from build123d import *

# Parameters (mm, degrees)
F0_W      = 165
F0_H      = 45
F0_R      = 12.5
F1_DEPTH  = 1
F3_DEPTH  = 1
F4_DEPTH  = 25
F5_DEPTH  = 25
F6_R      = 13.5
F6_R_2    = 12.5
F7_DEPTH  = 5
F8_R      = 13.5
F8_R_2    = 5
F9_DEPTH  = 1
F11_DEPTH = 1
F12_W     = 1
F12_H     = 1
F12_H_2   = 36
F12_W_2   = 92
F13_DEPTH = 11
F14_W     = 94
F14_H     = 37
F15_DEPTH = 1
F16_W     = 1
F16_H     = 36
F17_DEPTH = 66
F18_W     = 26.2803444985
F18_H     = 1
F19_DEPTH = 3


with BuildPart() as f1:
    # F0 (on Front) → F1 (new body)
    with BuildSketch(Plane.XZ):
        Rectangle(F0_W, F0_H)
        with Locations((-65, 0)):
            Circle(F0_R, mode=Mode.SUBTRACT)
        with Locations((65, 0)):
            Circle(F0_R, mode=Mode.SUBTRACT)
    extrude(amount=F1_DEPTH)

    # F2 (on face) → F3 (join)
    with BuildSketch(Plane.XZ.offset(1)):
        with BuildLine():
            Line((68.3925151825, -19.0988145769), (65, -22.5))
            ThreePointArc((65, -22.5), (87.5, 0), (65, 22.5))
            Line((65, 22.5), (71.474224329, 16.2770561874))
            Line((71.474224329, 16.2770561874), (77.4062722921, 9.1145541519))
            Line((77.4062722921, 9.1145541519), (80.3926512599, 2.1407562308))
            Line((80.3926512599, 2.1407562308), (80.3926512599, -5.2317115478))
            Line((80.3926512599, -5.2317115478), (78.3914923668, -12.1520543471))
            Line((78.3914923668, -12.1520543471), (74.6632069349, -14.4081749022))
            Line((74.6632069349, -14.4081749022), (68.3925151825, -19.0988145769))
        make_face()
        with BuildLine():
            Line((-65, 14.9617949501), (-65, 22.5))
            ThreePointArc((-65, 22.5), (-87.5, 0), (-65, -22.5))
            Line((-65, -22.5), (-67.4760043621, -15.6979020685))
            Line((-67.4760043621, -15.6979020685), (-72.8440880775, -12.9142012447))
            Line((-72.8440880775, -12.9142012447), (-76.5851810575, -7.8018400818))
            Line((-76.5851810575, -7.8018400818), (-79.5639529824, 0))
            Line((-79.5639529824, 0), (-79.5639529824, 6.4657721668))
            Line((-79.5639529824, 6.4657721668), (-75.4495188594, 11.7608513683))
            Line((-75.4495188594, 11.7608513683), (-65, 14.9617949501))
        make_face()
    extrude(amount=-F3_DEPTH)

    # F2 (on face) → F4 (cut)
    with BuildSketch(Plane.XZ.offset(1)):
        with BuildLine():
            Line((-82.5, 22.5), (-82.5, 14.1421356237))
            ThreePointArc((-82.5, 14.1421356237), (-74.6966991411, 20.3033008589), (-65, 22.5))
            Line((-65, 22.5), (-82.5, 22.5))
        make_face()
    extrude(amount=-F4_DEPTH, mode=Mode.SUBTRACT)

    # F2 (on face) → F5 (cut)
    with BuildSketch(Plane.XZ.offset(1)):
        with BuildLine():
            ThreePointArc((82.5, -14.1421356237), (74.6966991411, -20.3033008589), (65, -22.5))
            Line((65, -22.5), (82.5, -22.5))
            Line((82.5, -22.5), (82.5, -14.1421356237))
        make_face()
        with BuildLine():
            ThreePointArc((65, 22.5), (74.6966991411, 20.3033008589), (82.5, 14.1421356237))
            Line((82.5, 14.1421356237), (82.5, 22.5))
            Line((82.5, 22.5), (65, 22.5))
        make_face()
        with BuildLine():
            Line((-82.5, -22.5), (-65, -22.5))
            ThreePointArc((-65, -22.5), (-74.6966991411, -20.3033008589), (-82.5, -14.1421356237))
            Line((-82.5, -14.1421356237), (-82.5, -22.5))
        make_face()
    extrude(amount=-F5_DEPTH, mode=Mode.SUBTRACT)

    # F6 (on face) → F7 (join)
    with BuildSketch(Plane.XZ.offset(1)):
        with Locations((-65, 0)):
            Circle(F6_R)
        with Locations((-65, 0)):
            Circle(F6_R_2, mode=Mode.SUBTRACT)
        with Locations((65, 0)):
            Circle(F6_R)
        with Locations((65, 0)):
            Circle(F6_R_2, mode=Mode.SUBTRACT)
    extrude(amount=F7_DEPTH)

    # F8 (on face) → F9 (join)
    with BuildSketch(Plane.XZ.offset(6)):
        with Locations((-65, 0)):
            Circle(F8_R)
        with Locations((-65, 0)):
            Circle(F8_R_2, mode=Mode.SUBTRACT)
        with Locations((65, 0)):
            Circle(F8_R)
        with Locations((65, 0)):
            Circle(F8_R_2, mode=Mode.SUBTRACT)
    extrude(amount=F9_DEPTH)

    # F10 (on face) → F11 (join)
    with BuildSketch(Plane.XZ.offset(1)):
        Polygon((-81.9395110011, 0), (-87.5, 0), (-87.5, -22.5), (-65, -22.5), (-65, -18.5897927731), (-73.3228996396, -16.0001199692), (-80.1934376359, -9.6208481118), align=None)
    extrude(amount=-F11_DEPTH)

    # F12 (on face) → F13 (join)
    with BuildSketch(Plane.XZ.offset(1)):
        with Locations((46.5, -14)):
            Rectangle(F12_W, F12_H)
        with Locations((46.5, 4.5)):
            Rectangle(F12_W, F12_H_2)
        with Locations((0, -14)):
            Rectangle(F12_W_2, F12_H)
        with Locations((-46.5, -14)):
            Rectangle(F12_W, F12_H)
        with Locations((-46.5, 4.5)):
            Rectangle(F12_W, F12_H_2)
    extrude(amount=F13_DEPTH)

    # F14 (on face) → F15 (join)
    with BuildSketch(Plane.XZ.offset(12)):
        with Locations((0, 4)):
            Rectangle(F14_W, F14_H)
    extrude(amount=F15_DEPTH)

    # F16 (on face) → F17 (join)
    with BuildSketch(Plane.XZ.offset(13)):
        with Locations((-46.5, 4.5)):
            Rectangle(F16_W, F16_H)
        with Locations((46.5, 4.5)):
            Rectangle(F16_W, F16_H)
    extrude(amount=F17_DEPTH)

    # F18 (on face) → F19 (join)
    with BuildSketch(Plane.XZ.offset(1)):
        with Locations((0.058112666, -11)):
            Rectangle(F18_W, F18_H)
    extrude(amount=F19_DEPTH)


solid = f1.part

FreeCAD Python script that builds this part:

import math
import FreeCAD as App
import Part
import Sketcher
from FreeCAD import Vector

doc = App.newDocument("Part")
body = doc.addObject("PartDesign::Body", "Body")

# Sketch on XZ plane
sketch1 = body.newObject("Sketcher::SketchObject", "Sketch")
sketch1.AttachmentSupport = (doc.getObject("XZ_Plane"), [""])
sketch1.MapMode = "FlatFace"
sketch1.addGeometry([
    Part.LineSegment(Vector(-82, 22, 0), Vector(-82, -22, 0)),  # 0
    Part.LineSegment(Vector(-82, -22, 0), Vector(82, -22, 0)),  # 1
    Part.LineSegment(Vector(82, -22, 0), Vector(82, 22, 0)),  # 2
    Part.LineSegment(Vector(82, 22, 0), Vector(-82, 22, 0)),  # 3
    Part.Circle(Vector(-65, 0, 0), Vector(0, 0, 1), 12),  # 4
    Part.Circle(Vector(65, 0, 0), Vector(0, 0, 1), 12),  # 5
], False)
sketch1.addConstraint([
    Sketcher.Constraint("Coincident", 0, 2, 1, 1),
    Sketcher.Constraint("Coincident", 1, 2, 2, 1),
    Sketcher.Constraint("Coincident", 2, 2, 3, 1),
    Sketcher.Constraint("Coincident", 3, 2, 0, 1),
    Sketcher.Constraint("Vertical", 0),
    Sketcher.Constraint("Horizontal", 1),
    Sketcher.Constraint("Vertical", 2),
    Sketcher.Constraint("Horizontal", 3),
    Sketcher.Constraint("Equal", 4, 5),
    Sketcher.Constraint("Symmetric", 4, 3, 5, 3, -1, 1),
    Sketcher.Constraint("Symmetric", 0, 2, 2, 2, -1, 1),
    Sketcher.Constraint("PointOnObject", 4, 3, -1),
    Sketcher.Constraint("Diameter", 4, 25.0),
    Sketcher.Constraint("DistanceX", 1, 1, 1, 2, 165.0),
    Sketcher.Constraint("DistanceY", 0, 2, 0, 1, 45.0),
    Sketcher.Constraint("DistanceX", 4, 3, -1, 1, 65.0),
])
pad1 = body.newObject("PartDesign::Pad", "Pad")
pad1.Profile = sketch1
pad1.Length = 1

# Sketch on XZ plane
sketch2 = body.newObject("Sketcher::SketchObject", "Sketch001")
sketch2.AttachmentSupport = (doc.getObject("XZ_Plane"), [""])
sketch2.MapMode = "FlatFace"
sketch2.AttachmentOffset = App.Placement(Vector(0, 0, 1), App.Rotation())
sketch2.addGeometry([
    Part.LineSegment(Vector(68.4, -19.1, 0), Vector(65, -22.5, 0)),  # 0
    Part.ArcOfCircle(Part.Circle(Vector(65, 0, 0), Vector(0, 0, 1), 22.5), math.radians(-90), math.radians(90)),  # 1
    Part.LineSegment(Vector(65, 22.5, 0), Vector(71.5, 16.3, 0)),  # 2
    Part.LineSegment(Vector(71.5, 16.3, 0), Vector(77.4, 9.1, 0)),  # 3
    Part.LineSegment(Vector(77.4, 9.1, 0), Vector(80.4, 2.1, 0)),  # 4
    Part.LineSegment(Vector(80.4, 2.1, 0), Vector(80.4, -5.2, 0)),  # 5
    Part.LineSegment(Vector(80.4, -5.2, 0), Vector(78.4, -12.2, 0)),  # 6
    Part.LineSegment(Vector(78.4, -12.2, 0), Vector(74.7, -14.4, 0)),  # 7
    Part.LineSegment(Vector(74.7, -14.4, 0), Vector(68.4, -19.1, 0)),  # 8
    Part.LineSegment(Vector(-65, 15, 0), Vector(-65, 22.5, 0)),  # 9
    Part.ArcOfCircle(Part.Circle(Vector(-65, 0, 0), Vector(0, 0, 1), 22.5), math.radians(90), math.radians(270)),  # 10
    Part.LineSegment(Vector(-65, -22.5, 0), Vector(-67.5, -15.7, 0)),  # 11
    Part.LineSegment(Vector(-67.5, -15.7, 0), Vector(-72.8, -12.9, 0)),  # 12
    Part.LineSegment(Vector(-72.8, -12.9, 0), Vector(-76.6, -7.8, 0)),  # 13
    Part.LineSegment(Vector(-76.6, -7.8, 0), Vector(-79.6, 0, 0)),  # 14
    Part.LineSegment(Vector(-79.6, 0, 0), Vector(-79.6, 6.5, 0)),  # 15
    Part.LineSegment(Vector(-79.6, 6.5, 0), Vector(-75.4, 11.8, 0)),  # 16
    Part.LineSegment(Vector(-75.4, 11.8, 0), Vector(-65, 15, 0)),  # 17
], False)
sketch2.addConstraint([
    Sketcher.Constraint("Coincident", 0, 2, 1, 1),
    Sketcher.Constraint("Coincident", 1, 2, 2, 1),
    Sketcher.Constraint("Coincident", 2, 2, 3, 1),
    Sketcher.Constraint("Coincident", 3, 2, 4, 1),
    Sketcher.Constraint("Coincident", 4, 2, 5, 1),
    Sketcher.Constraint("Coincident", 5, 2, 6, 1),
    Sketcher.Constraint("Coincident", 6, 2, 7, 1),
    Sketcher.Constraint("Coincident", 7, 2, 8, 1),
    Sketcher.Constraint("Coincident", 8, 2, 0, 1),
    Sketcher.Constraint("Coincident", 9, 2, 10, 1),
    Sketcher.Constraint("Coincident", 10, 2, 11, 1),
    Sketcher.Constraint("Coincident", 11, 2, 12, 1),
    Sketcher.Constraint("Coincident", 12, 2, 13, 1),
    Sketcher.Constraint("Coincident", 13, 2, 14, 1),
    Sketcher.Constraint("Coincident", 14, 2, 15, 1),
    Sketcher.Constraint("Coincident", 15, 2, 16, 1),
    Sketcher.Constraint("Coincident", 16, 2, 17, 1),
    Sketcher.Constraint("Coincident", 17, 2, 9, 1),
    Sketcher.Constraint("Vertical", 5),
    Sketcher.Constraint("Vertical", 9),
    Sketcher.Constraint("Vertical", 15),
    Sketcher.Constraint("Equal", 1, 10),
    Sketcher.Constraint("Symmetric", 1, 3, 10, 3, -1, 1),
    Sketcher.Constraint("Symmetric", 1, 2, 9, 2, -2),
    Sketcher.Constraint("PointOnObject", 14, 2, -1),
    Sketcher.Constraint("Vertical", 1, 3, 0, 2),
    Sketcher.Constraint("Vertical", 0, 2, 1, 2),
    Sketcher.Constraint("Vertical", 9, 2, 10, 2),
    Sketcher.Constraint("Radius", 1, 22.5),
    Sketcher.Constraint("DistanceX", -1, 1, 1, 3, 65.0),
    Sketcher.Constraint("Distance", 16, 6.705701),
    Sketcher.Constraint("DistanceY", 12, 2, -1, 1, 12.914201),
    Sketcher.Constraint("DistanceY", 4, 2, 2, 2, 14.1363),
    Sketcher.Constraint("DistanceY", 11, 2, 12, 2, 2.783701),
    Sketcher.Constraint("Distance", 2, 8.980012),
    Sketcher.Constraint("Distance", 17, 10.928792),
    Sketcher.Constraint("DistanceY", 5, 2, 5, 1, 7.372468),
    Sketcher.Constraint("DistanceY", 9, 1, 9, 2, 7.538205),
    Sketcher.Constraint("DistanceY", 15, 1, 15, 2, 6.465772),
    Sketcher.Constraint("DistanceX", -1, 1, 4, 2, 80.392651),
    Sketcher.Constraint("DistanceY", 5, 2, -1, 1, 5.231712),
    Sketcher.Constraint("DistanceX", 12, 2, -1, 1, 72.844088),
    Sketcher.Constraint("DistanceX", 13, 2, -1, 1, 76.585181),
    Sketcher.Constraint("DistanceY", 13, 2, -1, 1, 7.80184),
    Sketcher.Constraint("DistanceX", 16, 2, -1, 1, 75.449519),
    Sketcher.Constraint("DistanceX", 3, 2, 4, 2, 2.986379),
    Sketcher.Constraint("DistanceX", 6, 2, 5, 2, 2.001159),
    Sketcher.Constraint("DistanceY", 6, 2, 4, 2, 14.292811),
    Sketcher.Constraint("DistanceY", 6, 2, 3, 2, 21.266608),
    Sketcher.Constraint("DistanceY", 7, 2, 6, 2, 2.256121),
    Sketcher.Constraint("DistanceX", 8, 2, 7, 2, 6.270692),
    Sketcher.Constraint("DistanceY", 8, 2, 7, 2, 4.69064),
    Sketcher.Constraint("DistanceX", 14, 2, 11, 2, 12.087949),
    Sketcher.Constraint("Distance", 0, 4.803876),
])
pad2 = body.newObject("PartDesign::Pad", "Pad001")
pad2.Profile = sketch2
pad2.Length = 1
pad2.Reversed = True

# Sketch on XZ plane
sketch3 = body.newObject("Sketcher::SketchObject", "Sketch002")
sketch3.AttachmentSupport = (doc.getObject("XZ_Plane"), [""])
sketch3.MapMode = "FlatFace"
sketch3.AttachmentOffset = App.Placement(Vector(0, 0, 1), App.Rotation())
sketch3.addGeometry([
    Part.LineSegment(Vector(-82, 22, 0), Vector(-82, 14, 0)),
    Part.ArcOfCircle(Part.Circle(Vector(-65, 0, 0), Vector(0, 0, 1), 22), math.radians(90), math.radians(141)),
    Part.LineSegment(Vector(-65, 22, 0), Vector(-82, 22, 0)),
], False)
sketch3.addConstraint([
    Sketcher.Constraint("Coincident", 0, 2, 1, 2),
    Sketcher.Constraint("Tangent", 1, 1, 2, 1),
    Sketcher.Constraint("Coincident", 2, 2, 0, 1),
    Sketcher.Constraint("Vertical", 0),
    Sketcher.Constraint("Horizontal", 2),
    Sketcher.Constraint("PointOnObject", 1, 3, -1),
    Sketcher.Constraint("Radius", 1, 22.5),
    Sketcher.Constraint("DistanceX", 2, 2, 2, 1, 17.5),
    Sketcher.Constraint("DistanceX", 1, 3, -1, 1, 65.0),
])
pocket1 = body.newObject("PartDesign::Pocket", "Pocket")
pocket1.Profile = sketch3
pocket1.Length = 25

# Sketch on XZ plane
sketch4 = body.newObject("Sketcher::SketchObject", "Sketch003")
sketch4.AttachmentSupport = (doc.getObject("XZ_Plane"), [""])
sketch4.MapMode = "FlatFace"
sketch4.AttachmentOffset = App.Placement(Vector(0, 0, 1), App.Rotation())
sketch4.addGeometry([
    Part.ArcOfCircle(Part.Circle(Vector(65, 0, 0), Vector(0, 0, 1), 22), math.radians(-90), math.radians(-39)),  # 0
    Part.LineSegment(Vector(65, -22, 0), Vector(82, -22, 0)),  # 1
    Part.LineSegment(Vector(82, -22, 0), Vector(82, -14, 0)),  # 2
    Part.ArcOfCircle(Part.Circle(Vector(65, 0, 0), Vector(0, 0, 1), 22), math.radians(39), math.radians(90)),  # 3
    Part.LineSegment(Vector(82, 14, 0), Vector(82, 22, 0)),  # 4
    Part.LineSegment(Vector(82, 22, 0), Vector(65, 22, 0)),  # 5
    Part.LineSegment(Vector(-82, -22, 0), Vector(-65, -22, 0)),  # 6
    Part.ArcOfCircle(Part.Circle(Vector(-65, 0, 0), Vector(0, 0, 1), 22), math.radians(-141), math.radians(-90)),  # 7
    Part.LineSegment(Vector(-82, -14, 0), Vector(-82, -22, 0)),  # 8
], False)
sketch4.addConstraint([
    Sketcher.Constraint("Tangent", 0, 1, 1, 1),
    Sketcher.Constraint("Coincident", 1, 2, 2, 1),
    Sketcher.Constraint("Coincident", 2, 2, 0, 2),
    Sketcher.Constraint("Coincident", 3, 1, 4, 1),
    Sketcher.Constraint("Coincident", 4, 2, 5, 1),
    Sketcher.Constraint("Tangent", 5, 2, 3, 2),
    Sketcher.Constraint("Tangent", 6, 2, 7, 2),
    Sketcher.Constraint("Coincident", 7, 1, 8, 1),
    Sketcher.Constraint("Coincident", 8, 2, 6, 1),
    Sketcher.Constraint("Horizontal", 1),
    Sketcher.Constraint("Vertical", 2),
    Sketcher.Constraint("Vertical", 4),
    Sketcher.Constraint("Horizontal", 5),
    Sketcher.Constraint("Horizontal", 6),
    Sketcher.Constraint("Vertical", 8),
    Sketcher.Constraint("Coincident", 3, 3, 0, 3),
    Sketcher.Constraint("Equal", 0, 3),
    Sketcher.Constraint("Equal", 3, 7),
    Sketcher.Constraint("Symmetric", 0, 3, 7, 3, -1, 1),
    Sketcher.Constraint("Symmetric", 2, 2, 7, 1, -2),
    Sketcher.Constraint("Vertical", 2, 2, 3, 1),
    Sketcher.Constraint("Radius", 0, 22.5),
    Sketcher.Constraint("DistanceX", 1, 1, 1, 2, 17.5),
    Sketcher.Constraint("DistanceX", -1, 1, 0, 3, 65.0),
])
pocket2 = body.newObject("PartDesign::Pocket", "Pocket001")
pocket2.Profile = sketch4
pocket2.Length = 25

# Sketch on XZ plane
sketch5 = body.newObject("Sketcher::SketchObject", "Sketch004")
sketch5.AttachmentSupport = (doc.getObject("XZ_Plane"), [""])
sketch5.MapMode = "FlatFace"
sketch5.AttachmentOffset = App.Placement(Vector(0, 0, 1), App.Rotation())
sketch5.addGeometry([
    Part.Circle(Vector(-65, 0, 0), Vector(0, 0, 1), 14),
    Part.Circle(Vector(-65, 0, 0), Vector(0, 0, 1), 12),
    Part.Circle(Vector(65, 0, 0), Vector(0, 0, 1), 14),
    Part.Circle(Vector(65, 0, 0), Vector(0, 0, 1), 12),
], False)
sketch5.addConstraint([
    Sketcher.Constraint("Coincident", 1, 3, 0, 3),
    Sketcher.Constraint("Coincident", 3, 3, 2, 3),
    Sketcher.Constraint("Equal", 0, 2),
    Sketcher.Constraint("Equal", 1, 3),
    Sketcher.Constraint("Symmetric", 0, 3, 2, 3, -1, 1),
    Sketcher.Constraint("PointOnObject", 0, 3, -1),
    Sketcher.Constraint("Diameter", 0, 27.0),
    Sketcher.Constraint("Diameter", 1, 25.0),
    Sketcher.Constraint("DistanceX", 0, 3, -1, 1, 65.0),
])
pad3 = body.newObject("PartDesign::Pad", "Pad002")
pad3.Profile = sketch5
pad3.Length = 5

# Sketch on XZ plane
sketch6 = body.newObject("Sketcher::SketchObject", "Sketch005")
sketch6.AttachmentSupport = (doc.getObject("XZ_Plane"), [""])
sketch6.MapMode = "FlatFace"
sketch6.AttachmentOffset = App.Placement(Vector(0, 0, 6), App.Rotation())
sketch6.addGeometry([
    Part.Circle(Vector(-65, 0, 0), Vector(0, 0, 1), 14),
    Part.Circle(Vector(-65, 0, 0), Vector(0, 0, 1), 5),
    Part.Circle(Vector(65, 0, 0), Vector(0, 0, 1), 14),
    Part.Circle(Vector(65, 0, 0), Vector(0, 0, 1), 5),
], False)
sketch6.addConstraint([
    Sketcher.Constraint("Coincident", 1, 3, 0, 3),
    Sketcher.Constraint("Coincident", 3, 3, 2, 3),
    Sketcher.Constraint("Equal", 0, 2),
    Sketcher.Constraint("Equal", 1, 3),
    Sketcher.Constraint("Symmetric", 0, 3, 2, 3, -1, 1),
    Sketcher.Constraint("PointOnObject", 0, 3, -1),
    Sketcher.Constraint("Diameter", 0, 27.0),
    Sketcher.Constraint("Diameter", 1, 10.0),
    Sketcher.Constraint("DistanceX", 0, 3, -1, 1, 65.0),
])
pad4 = body.newObject("PartDesign::Pad", "Pad003")
pad4.Profile = sketch6
pad4.Length = 1

# Sketch on XZ plane
sketch7 = body.newObject("Sketcher::SketchObject", "Sketch006")
sketch7.AttachmentSupport = (doc.getObject("XZ_Plane"), [""])
sketch7.MapMode = "FlatFace"
sketch7.AttachmentOffset = App.Placement(Vector(0, 0, 1), App.Rotation())
sketch7.addGeometry([
    Part.LineSegment(Vector(-81.9, 0, 0), Vector(-87.5, 0, 0)),  # 0
    Part.LineSegment(Vector(-87.5, 0, 0), Vector(-87.5, -22.5, 0)),  # 1
    Part.LineSegment(Vector(-87.5, -22.5, 0), Vector(-65, -22.5, 0)),  # 2
    Part.LineSegment(Vector(-65, -22.5, 0), Vector(-65, -18.6, 0)),  # 3
    Part.LineSegment(Vector(-65, -18.6, 0), Vector(-73.3, -16, 0)),  # 4
    Part.LineSegment(Vector(-73.3, -16, 0), Vector(-80.2, -9.6, 0)),  # 5
    Part.LineSegment(Vector(-80.2, -9.6, 0), Vector(-81.9, 0, 0)),  # 6
], False)
sketch7.addConstraint([
    Sketcher.Constraint("Coincident", 0, 2, 1, 1),
    Sketcher.Constraint("Coincident", 1, 2, 2, 1),
    Sketcher.Constraint("Coincident", 2, 2, 3, 1),
    Sketcher.Constraint("Coincident", 3, 2, 4, 1),
    Sketcher.Constraint("Coincident", 4, 2, 5, 1),
    Sketcher.Constraint("Coincident", 5, 2, 6, 1),
    Sketcher.Constraint("Coincident", 6, 2, 0, 1),
    Sketcher.Constraint("Horizontal", 0),
    Sketcher.Constraint("Vertical", 1),
    Sketcher.Constraint("Horizontal", 2),
    Sketcher.Constraint("Vertical", 3),
    Sketcher.Constraint("PointOnObject", 0, 2, -1),
    Sketcher.Constraint("Equal", 2, 1),
    Sketcher.Constraint("DistanceX", 2, 1, 2, 2, 22.5),
    Sketcher.Constraint("DistanceX", 2, 2, -1, 1, 65.0),
    Sketcher.Constraint("DistanceX", 0, 2, 0, 1, 5.560489),
    Sketcher.Constraint("DistanceX", 4, 2, -1, 1, 73.3229),
    Sketcher.Constraint("Distance", 5, 9.375468),
    Sketcher.Constraint("Distance", 6, 9.778011),
    Sketcher.Constraint("DistanceY", 3, 1, 3, 2, 3.910207),
    Sketcher.Constraint("DistanceY", 4, 2, -1, 1, 16.00012),
])
pad5 = body.newObject("PartDesign::Pad", "Pad004")
pad5.Profile = sketch7
pad5.Length = 1
pad5.Reversed = True

# Sketch on XZ plane
sketch8 = body.newObject("Sketcher::SketchObject", "Sketch007")
sketch8.AttachmentSupport = (doc.getObject("XZ_Plane"), [""])
sketch8.MapMode = "FlatFace"
sketch8.AttachmentOffset = App.Placement(Vector(0, 0, 1), App.Rotation())
sketch8.addGeometry([
    Part.LineSegment(Vector(47, -14.5, 0), Vector(47, 22.5, 0)),  # 0
    Part.LineSegment(Vector(47, 22.5, 0), Vector(46, 22.5, 0)),  # 1
    Part.LineSegment(Vector(46, 22.5, 0), Vector(46, -13.5, 0)),  # 2
    Part.LineSegment(Vector(46, -13.5, 0), Vector(-46, -13.5, 0)),  # 3
    Part.LineSegment(Vector(-46, -13.5, 0), Vector(-46, 22.5, 0)),  # 4
    Part.LineSegment(Vector(-46, 22.5, 0), Vector(-47, 22.5, 0)),  # 5
    Part.LineSegment(Vector(-47, 22.5, 0), Vector(-47, -14.5, 0)),  # 6
    Part.LineSegment(Vector(-47, -14.5, 0), Vector(47, -14.5, 0)),  # 7
], False)
sketch8.addConstraint([
    Sketcher.Constraint("Coincident", 0, 2, 1, 1),
    Sketcher.Constraint("Coincident", 1, 2, 2, 1),
    Sketcher.Constraint("Coincident", 2, 2, 3, 1),
    Sketcher.Constraint("Coincident", 3, 2, 4, 1),
    Sketcher.Constraint("Coincident", 4, 2, 5, 1),
    Sketcher.Constraint("Coincident", 5, 2, 6, 1),
    Sketcher.Constraint("Coincident", 6, 2, 7, 1),
    Sketcher.Constraint("Coincident", 7, 2, 0, 1),
    Sketcher.Constraint("Vertical", 0),
    Sketcher.Constraint("Horizontal", 1),
    Sketcher.Constraint("Vertical", 2),
    Sketcher.Constraint("Horizontal", 3),
    Sketcher.Constraint("Vertical", 4),
    Sketcher.Constraint("Horizontal", 5),
    Sketcher.Constraint("Vertical", 6),
    Sketcher.Constraint("Horizontal", 7),
    Sketcher.Constraint("Symmetric", 1, 2, 4, 2, -2),
    Sketcher.Constraint("Equal", 1, 5),
    Sketcher.Constraint("DistanceX", 1, 2, 1, 1, 1.0),
    Sketcher.Constraint("DistanceX", 3, 2, 3, 1, 92.0),
    Sketcher.Constraint("DistanceY", 0, 1, 0, 2, 37.0),
    Sketcher.Constraint("DistanceY", 2, 2, 2, 1, 36.0),
    Sketcher.Constraint("DistanceY", -1, 1, 0, 2, 22.5),
])
pad6 = body.newObject("PartDesign::Pad", "Pad005")
pad6.Profile = sketch8
pad6.Length = 11

# Sketch on XZ plane
sketch9 = body.newObject("Sketcher::SketchObject", "Sketch008")
sketch9.AttachmentSupport = (doc.getObject("XZ_Plane"), [""])
sketch9.MapMode = "FlatFace"
sketch9.AttachmentOffset = App.Placement(Vector(0, 0, 12), App.Rotation())
sketch9.addGeometry([
    Part.LineSegment(Vector(-47, 22, 0), Vector(-47, -14, 0)),
    Part.LineSegment(Vector(-47, -14, 0), Vector(47, -14, 0)),
    Part.LineSegment(Vector(47, -14, 0), Vector(47, 22, 0)),
    Part.LineSegment(Vector(47, 22, 0), Vector(-47, 22, 0)),
], False)
sketch9.addConstraint([
    Sketcher.Constraint("Coincident", 0, 2, 1, 1),
    Sketcher.Constraint("Coincident", 1, 2, 2, 1),
    Sketcher.Constraint("Coincident", 2, 2, 3, 1),
    Sketcher.Constraint("Coincident", 3, 2, 0, 1),
    Sketcher.Constraint("Vertical", 0),
    Sketcher.Constraint("Horizontal", 1),
    Sketcher.Constraint("Vertical", 2),
    Sketcher.Constraint("Horizontal", 3),
    Sketcher.Constraint("DistanceX", 1, 1, 1, 2, 94.0),
    Sketcher.Constraint("DistanceY", 0, 2, 0, 1, 37.0),
    Sketcher.Constraint("DistanceX", 0, 2, -1, 1, 47.0),
    Sketcher.Constraint("DistanceY", 0, 2, -1, 1, 14.5),
])
pad7 = body.newObject("PartDesign::Pad", "Pad006")
pad7.Profile = sketch9
pad7.Length = 1

# Sketch on XZ plane
sketch10 = body.newObject("Sketcher::SketchObject", "Sketch009")
sketch10.AttachmentSupport = (doc.getObject("XZ_Plane"), [""])
sketch10.MapMode = "FlatFace"
sketch10.AttachmentOffset = App.Placement(Vector(0, 0, 13), App.Rotation())
sketch10.addGeometry([
    Part.LineSegment(Vector(-47, 22.5, 0), Vector(-47, -13.5, 0)),  # 0
    Part.LineSegment(Vector(-47, -13.5, 0), Vector(-46, -13.5, 0)),  # 1
    Part.LineSegment(Vector(-46, -13.5, 0), Vector(-46, 22.5, 0)),  # 2
    Part.LineSegment(Vector(-46, 22.5, 0), Vector(-47, 22.5, 0)),  # 3
    Part.LineSegment(Vector(46, 22.5, 0), Vector(46, -13.5, 0)),  # 4
    Part.LineSegment(Vector(46, -13.5, 0), Vector(47, -13.5, 0)),  # 5
    Part.LineSegment(Vector(47, -13.5, 0), Vector(47, 22.5, 0)),  # 6
    Part.LineSegment(Vector(47, 22.5, 0), Vector(46, 22.5, 0)),  # 7
], False)
sketch10.addConstraint([
    Sketcher.Constraint("Coincident", 0, 2, 1, 1),
    Sketcher.Constraint("Coincident", 1, 2, 2, 1),
    Sketcher.Constraint("Coincident", 2, 2, 3, 1),
    Sketcher.Constraint("Coincident", 3, 2, 0, 1),
    Sketcher.Constraint("Coincident", 4, 2, 5, 1),
    Sketcher.Constraint("Coincident", 5, 2, 6, 1),
    Sketcher.Constraint("Coincident", 6, 2, 7, 1),
    Sketcher.Constraint("Coincident", 7, 2, 4, 1),
    Sketcher.Constraint("Vertical", 0),
    Sketcher.Constraint("Horizontal", 1),
    Sketcher.Constraint("Vertical", 2),
    Sketcher.Constraint("Horizontal", 3),
    Sketcher.Constraint("Vertical", 4),
    Sketcher.Constraint("Horizontal", 5),
    Sketcher.Constraint("Vertical", 6),
    Sketcher.Constraint("Horizontal", 7),
    Sketcher.Constraint("Symmetric", 1, 2, 4, 2, -2),
    Sketcher.Constraint("Symmetric", 3, 2, 6, 2, -2),
    Sketcher.Constraint("DistanceX", 1, 1, 1, 2, 1.0),
    Sketcher.Constraint("DistanceY", 0, 2, 0, 1, 36.0),
    Sketcher.Constraint("DistanceX", 0, 2, -1, 1, 47.0),
    Sketcher.Constraint("DistanceY", 0, 2, -1, 1, 13.5),
])
pad8 = body.newObject("PartDesign::Pad", "Pad007")
pad8.Profile = sketch10
pad8.Length = 66

# Sketch on XZ plane
sketch11 = body.newObject("Sketcher::SketchObject", "Sketch010")
sketch11.AttachmentSupport = (doc.getObject("XZ_Plane"), [""])
sketch11.MapMode = "FlatFace"
sketch11.AttachmentOffset = App.Placement(Vector(0, 0, 1), App.Rotation())
sketch11.addGeometry([
    Part.LineSegment(Vector(-13.1, -10.5, 0), Vector(-13.1, -11.5, 0)),
    Part.LineSegment(Vector(-13.1, -11.5, 0), Vector(13.2, -11.5, 0)),
    Part.LineSegment(Vector(13.2, -11.5, 0), Vector(13.2, -10.5, 0)),
    Part.LineSegment(Vector(13.2, -10.5, 0), Vector(-13.1, -10.5, 0)),
], False)
sketch11.addConstraint([
    Sketcher.Constraint("Coincident", 0, 2, 1, 1),
    Sketcher.Constraint("Coincident", 1, 2, 2, 1),
    Sketcher.Constraint("Coincident", 2, 2, 3, 1),
    Sketcher.Constraint("Coincident", 3, 2, 0, 1),
    Sketcher.Constraint("Vertical", 0),
    Sketcher.Constraint("Horizontal", 1),
    Sketcher.Constraint("Vertical", 2),
    Sketcher.Constraint("Horizontal", 3),
    Sketcher.Constraint("DistanceY", 0, 2, 0, 1, 1.0),
    Sketcher.Constraint("DistanceY", 0, 2, -1, 1, 11.5),
    Sketcher.Constraint("DistanceX", 1, 1, 1, 2, 26.280344),
    Sketcher.Constraint("DistanceX", 0, 2, -1, 1, 13.08206),
])
pad9 = body.newObject("PartDesign::Pad", "Pad008")
pad9.Profile = sketch11
pad9.Length = 3

doc.recompute()
